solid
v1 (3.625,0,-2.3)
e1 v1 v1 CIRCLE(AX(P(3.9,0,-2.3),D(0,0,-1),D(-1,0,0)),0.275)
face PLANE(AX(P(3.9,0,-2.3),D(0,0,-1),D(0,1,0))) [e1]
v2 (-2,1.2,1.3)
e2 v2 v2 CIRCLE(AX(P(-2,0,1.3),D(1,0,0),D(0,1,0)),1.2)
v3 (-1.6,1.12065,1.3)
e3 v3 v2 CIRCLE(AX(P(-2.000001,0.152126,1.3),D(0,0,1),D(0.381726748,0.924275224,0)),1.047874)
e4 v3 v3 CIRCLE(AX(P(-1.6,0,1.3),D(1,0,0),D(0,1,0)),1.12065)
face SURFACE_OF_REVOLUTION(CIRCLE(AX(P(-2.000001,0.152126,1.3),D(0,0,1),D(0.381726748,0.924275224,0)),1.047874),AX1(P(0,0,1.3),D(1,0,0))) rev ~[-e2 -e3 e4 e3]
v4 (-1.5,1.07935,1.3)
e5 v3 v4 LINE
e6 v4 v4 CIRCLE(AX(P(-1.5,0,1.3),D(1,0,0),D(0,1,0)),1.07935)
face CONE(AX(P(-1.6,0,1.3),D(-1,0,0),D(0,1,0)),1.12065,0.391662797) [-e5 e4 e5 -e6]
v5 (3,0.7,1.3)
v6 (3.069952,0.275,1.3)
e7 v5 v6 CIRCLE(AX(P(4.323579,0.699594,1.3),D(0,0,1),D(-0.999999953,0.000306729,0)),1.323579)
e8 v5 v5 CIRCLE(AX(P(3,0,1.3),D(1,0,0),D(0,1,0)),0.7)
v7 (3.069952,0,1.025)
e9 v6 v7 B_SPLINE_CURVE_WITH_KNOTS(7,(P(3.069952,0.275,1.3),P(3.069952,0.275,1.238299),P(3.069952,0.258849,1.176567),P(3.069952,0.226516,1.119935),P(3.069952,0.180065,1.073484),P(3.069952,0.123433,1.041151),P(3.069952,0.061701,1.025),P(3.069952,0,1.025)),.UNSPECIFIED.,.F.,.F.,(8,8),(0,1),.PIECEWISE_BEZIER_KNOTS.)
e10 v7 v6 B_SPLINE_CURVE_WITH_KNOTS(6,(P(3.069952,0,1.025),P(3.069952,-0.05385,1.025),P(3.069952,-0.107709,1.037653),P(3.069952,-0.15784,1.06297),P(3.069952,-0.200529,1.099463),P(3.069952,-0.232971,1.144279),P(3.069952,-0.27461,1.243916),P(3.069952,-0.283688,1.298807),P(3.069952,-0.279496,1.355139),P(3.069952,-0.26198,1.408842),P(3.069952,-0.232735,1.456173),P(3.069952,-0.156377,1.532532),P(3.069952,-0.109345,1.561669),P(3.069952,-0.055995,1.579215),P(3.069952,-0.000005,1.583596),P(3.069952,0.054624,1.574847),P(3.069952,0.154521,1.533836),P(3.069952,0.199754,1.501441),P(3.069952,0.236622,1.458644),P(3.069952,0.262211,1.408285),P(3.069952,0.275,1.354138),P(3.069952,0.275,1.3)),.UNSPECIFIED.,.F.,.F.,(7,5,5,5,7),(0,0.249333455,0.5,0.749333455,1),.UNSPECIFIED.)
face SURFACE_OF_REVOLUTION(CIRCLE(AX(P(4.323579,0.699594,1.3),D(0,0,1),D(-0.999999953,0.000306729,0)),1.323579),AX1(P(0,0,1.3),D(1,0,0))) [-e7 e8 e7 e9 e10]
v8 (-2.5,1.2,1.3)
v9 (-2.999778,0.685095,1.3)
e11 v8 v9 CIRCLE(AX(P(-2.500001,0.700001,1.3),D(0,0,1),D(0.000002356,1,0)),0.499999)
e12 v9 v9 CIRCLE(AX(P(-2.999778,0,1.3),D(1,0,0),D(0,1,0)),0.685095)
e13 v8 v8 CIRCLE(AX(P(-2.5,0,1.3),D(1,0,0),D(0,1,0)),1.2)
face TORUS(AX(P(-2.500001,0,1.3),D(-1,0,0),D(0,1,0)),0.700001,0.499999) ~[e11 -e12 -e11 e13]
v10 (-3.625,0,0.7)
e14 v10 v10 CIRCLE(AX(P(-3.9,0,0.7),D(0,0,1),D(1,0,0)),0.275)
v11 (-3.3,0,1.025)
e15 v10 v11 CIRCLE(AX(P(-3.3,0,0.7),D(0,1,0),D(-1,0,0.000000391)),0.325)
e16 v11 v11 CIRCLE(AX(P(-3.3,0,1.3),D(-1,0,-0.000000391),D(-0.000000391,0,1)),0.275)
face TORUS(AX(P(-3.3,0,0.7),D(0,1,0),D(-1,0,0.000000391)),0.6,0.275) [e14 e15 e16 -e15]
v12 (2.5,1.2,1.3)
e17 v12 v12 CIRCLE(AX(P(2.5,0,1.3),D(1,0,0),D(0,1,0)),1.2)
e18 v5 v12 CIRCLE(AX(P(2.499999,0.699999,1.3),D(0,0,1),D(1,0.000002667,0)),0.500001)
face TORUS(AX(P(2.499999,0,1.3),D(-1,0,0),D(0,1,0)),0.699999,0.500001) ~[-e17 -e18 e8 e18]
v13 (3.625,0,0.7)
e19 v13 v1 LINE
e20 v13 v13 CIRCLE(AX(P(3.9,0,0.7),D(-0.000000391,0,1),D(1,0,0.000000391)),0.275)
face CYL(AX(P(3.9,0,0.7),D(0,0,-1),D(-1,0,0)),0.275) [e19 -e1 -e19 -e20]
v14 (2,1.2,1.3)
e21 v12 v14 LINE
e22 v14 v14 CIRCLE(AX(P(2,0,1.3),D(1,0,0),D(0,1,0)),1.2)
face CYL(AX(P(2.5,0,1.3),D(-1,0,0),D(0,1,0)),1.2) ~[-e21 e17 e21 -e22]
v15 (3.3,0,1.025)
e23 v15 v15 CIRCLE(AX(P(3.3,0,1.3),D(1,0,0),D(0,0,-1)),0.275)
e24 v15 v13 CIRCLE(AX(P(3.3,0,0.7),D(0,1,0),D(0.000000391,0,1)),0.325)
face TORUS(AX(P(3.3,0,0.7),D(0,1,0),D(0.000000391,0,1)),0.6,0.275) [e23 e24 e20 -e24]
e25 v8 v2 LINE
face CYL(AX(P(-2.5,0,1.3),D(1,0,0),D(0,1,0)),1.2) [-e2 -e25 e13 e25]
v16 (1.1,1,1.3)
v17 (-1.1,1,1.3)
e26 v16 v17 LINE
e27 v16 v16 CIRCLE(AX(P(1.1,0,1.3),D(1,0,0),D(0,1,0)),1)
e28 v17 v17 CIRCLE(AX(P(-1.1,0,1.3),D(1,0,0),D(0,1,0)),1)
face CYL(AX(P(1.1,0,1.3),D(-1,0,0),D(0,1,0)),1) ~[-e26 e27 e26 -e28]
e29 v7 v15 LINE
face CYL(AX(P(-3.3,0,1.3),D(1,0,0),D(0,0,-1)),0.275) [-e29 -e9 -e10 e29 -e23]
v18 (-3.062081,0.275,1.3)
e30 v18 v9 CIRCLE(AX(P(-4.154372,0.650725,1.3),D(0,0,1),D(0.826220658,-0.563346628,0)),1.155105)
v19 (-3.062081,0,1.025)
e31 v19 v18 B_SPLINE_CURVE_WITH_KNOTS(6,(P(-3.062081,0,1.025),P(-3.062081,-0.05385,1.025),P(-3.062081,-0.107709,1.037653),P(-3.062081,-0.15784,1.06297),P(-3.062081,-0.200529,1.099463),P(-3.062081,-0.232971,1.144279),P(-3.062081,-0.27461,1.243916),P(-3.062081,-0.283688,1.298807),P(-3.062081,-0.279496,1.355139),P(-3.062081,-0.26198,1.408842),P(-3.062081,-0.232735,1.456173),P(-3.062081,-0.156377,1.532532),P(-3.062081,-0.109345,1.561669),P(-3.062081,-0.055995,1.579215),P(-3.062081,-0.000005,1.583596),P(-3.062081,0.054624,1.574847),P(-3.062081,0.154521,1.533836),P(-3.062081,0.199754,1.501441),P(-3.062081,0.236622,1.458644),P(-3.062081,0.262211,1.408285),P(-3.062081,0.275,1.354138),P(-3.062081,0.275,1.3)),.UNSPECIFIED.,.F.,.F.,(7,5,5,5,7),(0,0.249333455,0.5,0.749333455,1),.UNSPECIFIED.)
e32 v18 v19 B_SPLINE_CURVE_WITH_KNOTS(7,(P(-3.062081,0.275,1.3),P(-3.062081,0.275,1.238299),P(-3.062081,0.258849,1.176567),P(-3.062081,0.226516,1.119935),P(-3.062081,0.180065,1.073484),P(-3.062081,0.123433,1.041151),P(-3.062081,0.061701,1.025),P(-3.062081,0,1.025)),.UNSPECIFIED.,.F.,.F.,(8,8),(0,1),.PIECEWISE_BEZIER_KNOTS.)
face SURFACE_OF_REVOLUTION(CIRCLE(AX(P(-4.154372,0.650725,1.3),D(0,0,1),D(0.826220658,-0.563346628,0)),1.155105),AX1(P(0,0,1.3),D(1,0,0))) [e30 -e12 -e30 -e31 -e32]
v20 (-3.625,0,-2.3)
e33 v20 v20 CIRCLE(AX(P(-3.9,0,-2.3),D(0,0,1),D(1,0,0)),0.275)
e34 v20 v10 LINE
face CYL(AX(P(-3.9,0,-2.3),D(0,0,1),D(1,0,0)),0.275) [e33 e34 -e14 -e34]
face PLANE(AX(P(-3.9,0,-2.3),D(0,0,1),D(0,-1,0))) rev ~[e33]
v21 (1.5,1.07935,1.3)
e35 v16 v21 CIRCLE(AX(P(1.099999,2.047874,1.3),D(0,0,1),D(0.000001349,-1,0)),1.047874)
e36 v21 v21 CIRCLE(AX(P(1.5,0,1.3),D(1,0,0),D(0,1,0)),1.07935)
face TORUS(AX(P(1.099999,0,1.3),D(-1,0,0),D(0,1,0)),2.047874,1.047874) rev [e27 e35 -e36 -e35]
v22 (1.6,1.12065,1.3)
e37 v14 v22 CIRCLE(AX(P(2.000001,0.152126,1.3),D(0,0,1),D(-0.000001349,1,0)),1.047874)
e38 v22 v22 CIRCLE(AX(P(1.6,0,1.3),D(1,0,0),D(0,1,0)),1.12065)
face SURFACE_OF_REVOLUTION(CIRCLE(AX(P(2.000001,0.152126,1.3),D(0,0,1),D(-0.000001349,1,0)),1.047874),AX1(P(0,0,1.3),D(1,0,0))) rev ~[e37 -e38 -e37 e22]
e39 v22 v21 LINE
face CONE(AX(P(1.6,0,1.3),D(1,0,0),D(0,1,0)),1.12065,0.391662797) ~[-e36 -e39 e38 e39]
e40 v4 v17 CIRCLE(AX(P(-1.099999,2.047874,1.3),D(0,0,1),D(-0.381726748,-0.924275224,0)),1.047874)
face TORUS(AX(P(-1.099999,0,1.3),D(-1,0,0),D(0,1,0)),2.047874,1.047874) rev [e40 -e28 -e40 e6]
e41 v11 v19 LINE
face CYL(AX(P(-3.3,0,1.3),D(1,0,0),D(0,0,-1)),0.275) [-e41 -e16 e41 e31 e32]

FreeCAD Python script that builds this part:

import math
import FreeCAD as App
import Part
import Sketcher

doc = App.newDocument("Part")
body = doc.addObject("PartDesign::Body", "Body")

# Sketch on XY plane
sketch1 = body.newObject("Sketcher::SketchObject", "Sketch")
sketch1.AttachmentSupport = (doc.getObject("XY_Plane"), [""])
sketch1.MapMode = "FlatFace"
sketch1.addGeometry([
    Part.LineSegment(App.Vector(-2, 1.2, 0), App.Vector(-2.5, 1.2, 0)),  # 0
    Part.ArcOfCircle(Part.Circle(App.Vector(-2.500001, 0.700001, 0), App.Vector(0, 0, 1), 0.499999), math.radians(89.999865), math.radians(181.708351)),  # 1
    Part.ArcOfCircle(Part.Circle(App.Vector(-4.154372, 0.650725, 0), App.Vector(0, 0, 1), 1.155105), math.radians(-34.287557), math.radians(1.705092)),  # 2
    Part.LineSegment(App.Vector(-3.2, 0, 0), App.Vector(3.2, 0, 0)),  # 3
    Part.ArcOfCircle(Part.Circle(App.Vector(4.323579, 0.699594, 0), App.Vector(0, 0, 1), 1.323579), math.radians(179.982426), math.radians(211.908366)),  # 4
    Part.ArcOfCircle(Part.Circle(App.Vector(2.499999, 0.699999, 0), App.Vector(0, 0, 1), 0.500001), math.radians(0.000153), math.radians(89.999847)),  # 5
    Part.LineSegment(App.Vector(2.5, 1.2, 0), App.Vector(2, 1.2, 0)),  # 6
    Part.ArcOfCircle(Part.Circle(App.Vector(2.000001, 0.152126, 0), App.Vector(0, 0, 1), 1.047874), math.radians(90.000077), math.radians(112.440683)),  # 7
    Part.LineSegment(App.Vector(1.6, 1.12065, 0), App.Vector(1.5, 1.07935, 0)),  # 8
    Part.ArcOfCircle(Part.Circle(App.Vector(1.099999, 2.047874, 0), App.Vector(0, 0, 1), 1.047874), math.radians(-89.999923), math.radians(-67.559317)),  # 9
    Part.LineSegment(App.Vector(1.1, 1, 0), App.Vector(-1.1, 1, 0)),  # 10
    Part.ArcOfCircle(Part.Circle(App.Vector(-1.099999, 2.047874, 0), App.Vector(0, 0, 1), 1.047874), math.radians(-112.440683), math.radians(-90.000077)),  # 11
    Part.LineSegment(App.Vector(-1.5, 1.07935, 0), App.Vector(-1.6, 1.12065, 0)),  # 12
    Part.ArcOfCircle(Part.Circle(App.Vector(-2.000001, 0.152126, 0), App.Vector(0, 0, 1), 1.047874), math.radians(67.559317), math.radians(89.999923)),  # 13
], False)
sketch1.addConstraint([
    Sketcher.Constraint("Coincident", 0, 2, 1, 1),
    Sketcher.Constraint("Coincident", 1, 2, 2, 2),
    Sketcher.Constraint("Coincident", 2, 1, 3, 1),
    Sketcher.Constraint("Coincident", 3, 2, 4, 2),
    Sketcher.Constraint("Coincident", 4, 1, 5, 1),
    Sketcher.Constraint("Coincident", 5, 2, 6, 1),
    Sketcher.Constraint("Tangent", 6, 2, 7, 1),
    Sketcher.Constraint("Tangent", 7, 2, 8, 1),
    Sketcher.Constraint("Tangent", 8, 2, 9, 2),
    Sketcher.Constraint("Tangent", 9, 1, 10, 1),
    Sketcher.Constraint("Tangent", 10, 2, 11, 2),
    Sketcher.Constraint("Tangent", 11, 1, 12, 1),
    Sketcher.Constraint("Tangent", 12, 2, 13, 1),
    Sketcher.Constraint("Tangent", 13, 2, 0, 1),
    Sketcher.Constraint("Horizontal", 0),
    Sketcher.Constraint("Horizontal", 3),
    Sketcher.Constraint("Horizontal", 6),
    Sketcher.Constraint("Horizontal", 10),
    Sketcher.Constraint("Equal", 7, 9),
    Sketcher.Constraint("Equal", 9, 11),
    Sketcher.Constraint("Equal", 11, 13),
    Sketcher.Constraint("Symmetric", 2, 1, 3, 2, -1, 1),
    Sketcher.Constraint("Symmetric", 1, 3, 5, 3, -2),
    Sketcher.Constraint("Symmetric", 7, 3, 13, 3, -2),
    Sketcher.Constraint("Horizontal", 5, 3, 4, 1),
    Sketcher.Constraint("Horizontal", 8, 2, 11, 1),
    Sketcher.Constraint("Vertical", 1, 3, 0, 2),
    Sketcher.Constraint("Equal", 0, 6),
    Sketcher.Constraint("Radius", 1, 0.499999),
    Sketcher.Constraint("DistanceX", 0, 2, 0, 1, 0.5),
    Sketcher.Constraint("DistanceX", 3, 1, 3, 2, 6.4),
    Sketcher.Constraint("DistanceX", 10, 2, 10, 1, 2.2),
    Sketcher.Constraint("DistanceX", -1, 1, 7, 3, 2.000001),
    Sketcher.Constraint("DistanceY", -1, 1, 9, 1, 1.0),
    Sketcher.Constraint("DistanceX", 8, 2, 5, 2, 1.0),
    Sketcher.Constraint("DistanceY", -1, 1, 1, 3, 0.700001),
    Sketcher.Constraint("Radius", 4, 1.323579),
    Sketcher.Constraint("Radius", 2, 1.155105),
    Sketcher.Constraint("DistanceX", 1, 2, -1, 1, 2.999778),
])
revolution = body.newObject("PartDesign::Revolution", "Revolution")
revolution.Profile = sketch1
revolution.ReferenceAxis = (sketch1, ["H_Axis"])
revolution.Angle = 360
body2 = doc.addObject("PartDesign::Body", "Body001")
doc.recompute()

body.Placement = App.Placement(App.Vector(0, 0, 0), App.Rotation(App.Vector(1, 0, 0), 90))
boolean = body2.newObject("PartDesign::Boolean", "Boolean")
boolean.Type = "Fuse"
boolean.addObjects([body])
body3 = doc.addObject("PartDesign::Body", "Body002")
doc.recompute()

body2.Placement = App.Placement(App.Vector(0, 0, 0), App.Rotation(App.Vector(1, 0, 0), 270))
boolean2 = body3.newObject("PartDesign::Boolean", "Boolean001")
boolean2.Type = "Fuse"
boolean2.addObjects([body2])
body4 = doc.addObject("PartDesign::Body", "Body003")
doc.recompute()

body3.Placement = App.Placement(App.Vector(0, 0, 1.3), App.Rotation(App.Vector(0, 0, 1), 0))
boolean3 = body4.newObject("PartDesign::Boolean", "Boolean002")
boolean3.Type = "Fuse"
boolean3.addObjects([body3])
body5 = doc.addObject("PartDesign::Body", "Body004")

# Sketch on YZ plane
sketch2 = body5.newObject("Sketcher::SketchObject", "Sketch001")
sketch2.AttachmentSupport = (doc.getObject("YZ_Plane004"), [""])
sketch2.MapMode = "FlatFace"
sketch2.addGeometry(Part.Circle(App.Vector(0, 0, 0), App.Vector(0, 0, 1), 0.275), False)
sketch2.addConstraint([
    Sketcher.Constraint("Coincident", 0, 3, -1, 1),
    Sketcher.Constraint("Diameter", 0, 0.55),
])

# Sketch on XY plane
sketch3 = body5.newObject("Sketcher::SketchObject", "Sketch002")
sketch3.AttachmentSupport = (doc.getObject("XY_Plane004"), [""])
sketch3.MapMode = "FlatFace"
sketch3.addGeometry([
    Part.LineSegment(App.Vector(-3.9, 3.6, 0), App.Vector(-3.9, 0.6, 0)),  # 0
    Part.ArcOfCircle(Part.Circle(App.Vector(-3.3, 0.6, 0), App.Vector(0, 0, 1), 0.6), math.radians(-179.999978), math.radians(-90.000022)),  # 1
    Part.LineSegment(App.Vector(-3.3, 0, 0), App.Vector(3.3, 0, 0)),  # 2
    Part.ArcOfCircle(Part.Circle(App.Vector(3.3, 0.6, 0), App.Vector(0, 0, 1), 0.6), math.radians(-89.999978), math.radians(-0.000022)),  # 3
    Part.LineSegment(App.Vector(3.9, 0.6, 0), App.Vector(3.9, 3.6, 0)),  # 4
], False)
sketch3.addConstraint([
    Sketcher.Constraint("Tangent", 0, 2, 1, 1),
    Sketcher.Constraint("Tangent", 1, 2, 2, 1),
    Sketcher.Constraint("Tangent", 2, 2, 3, 1),
    Sketcher.Constraint("Tangent", 3, 2, 4, 1),
    Sketcher.Constraint("Vertical", 0),
    Sketcher.Constraint("Horizontal", 2),
    Sketcher.Constraint("Vertical", 4),
    Sketcher.Constraint("Equal", 1, 3),
    Sketcher.Constraint("Symmetric", 1, 2, 2, 2, -1, 1),
    Sketcher.Constraint("Horizontal", 0, 1, 4, 2),
    Sketcher.Constraint("Radius", 1, 0.6),
    Sketcher.Constraint("DistanceY", 0, 2, 0, 1, 3.0),
    Sketcher.Constraint("DistanceX", 2, 1, 2, 2, 6.6),
])
doc.recompute()

additivepipe = body5.newObject("PartDesign::AdditivePipe", "AdditivePipe")
additivepipe.Profile = sketch2
additivepipe.Spine = (sketch3, ["Edge1", "Edge2", "Edge3", "Edge4", "Edge5"])
body6 = doc.addObject("PartDesign::Body", "Body005")
doc.recompute()

body5.Placement = App.Placement(App.Vector(0, 0, 0), App.Rotation(App.Vector(1, 0, 0), 270))
boolean4 = body6.newObject("PartDesign::Boolean", "Boolean003")
boolean4.Type = "Fuse"
boolean4.addObjects([body5])
body7 = doc.addObject("PartDesign::Body", "Body006")
doc.recompute()

body6.Placement = App.Placement(App.Vector(0, 0, 1.3), App.Rotation(App.Vector(0, 0, 1), 0))
boolean5 = body7.newObject("PartDesign::Boolean", "Boolean004")
boolean5.Type = "Fuse"
boolean5.addObjects([body6])
doc.recompute()

boolean6 = body7.newObject("PartDesign::Boolean", "Boolean005")
boolean6.Type = "Fuse"
boolean6.addObjects([body4])

doc.recompute()
